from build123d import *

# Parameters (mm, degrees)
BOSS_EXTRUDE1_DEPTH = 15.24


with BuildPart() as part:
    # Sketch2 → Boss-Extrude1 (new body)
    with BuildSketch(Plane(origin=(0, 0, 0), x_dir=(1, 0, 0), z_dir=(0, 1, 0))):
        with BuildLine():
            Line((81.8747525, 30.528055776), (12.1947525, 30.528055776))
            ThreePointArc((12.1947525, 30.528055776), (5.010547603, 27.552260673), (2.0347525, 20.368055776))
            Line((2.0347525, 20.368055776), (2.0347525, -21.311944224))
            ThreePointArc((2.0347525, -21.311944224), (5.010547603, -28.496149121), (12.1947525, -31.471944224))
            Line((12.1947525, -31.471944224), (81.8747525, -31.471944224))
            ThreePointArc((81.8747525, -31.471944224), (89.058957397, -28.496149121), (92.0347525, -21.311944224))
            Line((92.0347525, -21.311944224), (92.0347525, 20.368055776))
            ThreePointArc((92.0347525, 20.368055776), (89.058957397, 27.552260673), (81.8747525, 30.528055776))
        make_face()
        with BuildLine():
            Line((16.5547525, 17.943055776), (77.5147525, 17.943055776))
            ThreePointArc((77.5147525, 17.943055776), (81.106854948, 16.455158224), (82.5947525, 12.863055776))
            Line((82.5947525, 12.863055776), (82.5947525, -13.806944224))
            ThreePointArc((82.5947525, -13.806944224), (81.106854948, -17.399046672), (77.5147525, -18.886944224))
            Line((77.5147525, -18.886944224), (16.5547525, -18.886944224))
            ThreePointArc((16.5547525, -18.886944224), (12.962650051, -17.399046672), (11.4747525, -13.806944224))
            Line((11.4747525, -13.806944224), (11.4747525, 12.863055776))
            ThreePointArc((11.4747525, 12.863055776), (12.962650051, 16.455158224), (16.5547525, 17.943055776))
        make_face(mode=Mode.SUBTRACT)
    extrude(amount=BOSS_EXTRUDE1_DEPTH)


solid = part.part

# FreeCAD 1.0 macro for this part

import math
import FreeCAD as App
import Part
import Sketcher

V = App.Vector
Q = App.Units.Quantity

doc = App.newDocument("Part")
body = doc.addObject("PartDesign::Body", "Body")

sketch1 = doc.addObject("Sketcher::SketchObject", "Sketch")
body.addObject(sketch1)
sketch1.AttachmentSupport = (doc.XZ_Plane, [""])
sketch1.MapMode = "FlatFace"
sketch1.addGeometry([
    Part.LineSegment(V(82, -31, 0), V(12, -31, 0)),
    Part.ArcOfCircle(Part.Circle(V(12, -20, 0), V(0, 0, 1), 10), math.radians(180), math.radians(270)),
    Part.LineSegment(V(2, -20, 0), V(2, 21, 0)),
    Part.ArcOfCircle(Part.Circle(V(12, 21, 0), V(0, 0, 1), 10), math.radians(90), math.radians(180)),
    Part.LineSegment(V(12, 31, 0), V(82, 31, 0)),
    Part.ArcOfCircle(Part.Circle(V(82, 21, 0), V(0, 0, 1), 10), math.radians(0), math.radians(90)),
    Part.LineSegment(V(92, 21, 0), V(92, -20, 0)),
    Part.ArcOfCircle(Part.Circle(V(82, -20, 0), V(0, 0, 1), 10), math.radians(-90), math.radians(0)),
    Part.ArcOfCircle(Part.Circle(V(17, -13, 0), V(0, 0, 1), 5), math.radians(180), math.radians(270)),
    Part.LineSegment(V(17, -18, 0), V(78, -18, 0)),
    Part.ArcOfCircle(Part.Circle(V(78, -13, 0), V(0, 0, 1), 5), math.radians(-90), math.radians(0)),
    Part.LineSegment(V(83, -13, 0), V(83, 14, 0)),
    Part.ArcOfCircle(Part.Circle(V(78, 14, 0), V(0, 0, 1), 5), math.radians(0), math.radians(90)),
    Part.LineSegment(V(78, 19, 0), V(17, 19, 0)),
    Part.ArcOfCircle(Part.Circle(V(17, 14, 0), V(0, 0, 1), 5), math.radians(90), math.radians(180)),
    Part.LineSegment(V(11, 14, 0), V(11, -13, 0)),
], False)
sketch1.addConstraint([
    Sketcher.Constraint("Tangent", 0, 2, 1, 2),
    Sketcher.Constraint("Tangent", 1, 1, 2, 1),
    Sketcher.Constraint("Tangent", 2, 2, 3, 2),
    Sketcher.Constraint("Tangent", 3, 1, 4, 1),
    Sketcher.Constraint("Tangent", 4, 2, 5, 2),
    Sketcher.Constraint("Tangent", 5, 1, 6, 1),
    Sketcher.Constraint("Tangent", 6, 2, 7, 2),
    Sketcher.Constraint("Tangent", 7, 1, 0, 1),
    Sketcher.Constraint("Tangent", 8, 2, 9, 1),
    Sketcher.Constraint("Tangent", 9, 2, 10, 1),
    Sketcher.Constraint("Tangent", 10, 2, 11, 1),
    Sketcher.Constraint("Tangent", 11, 2, 12, 1),
    Sketcher.Constraint("Tangent", 12, 2, 13, 1),
    Sketcher.Constraint("Tangent", 13, 2, 14, 1),
    Sketcher.Constraint("Tangent", 14, 2, 15, 1),
    Sketcher.Constraint("Tangent", 15, 2, 8, 1),
    Sketcher.Constraint("Horizontal", 0),
    Sketcher.Constraint("Vertical", 2),
    Sketcher.Constraint("Horizontal", 4),
    Sketcher.Constraint("Vertical", 6),
    Sketcher.Constraint("Horizontal", 9),
    Sketcher.Constraint("Vertical", 11),
    Sketcher.Constraint("Horizontal", 13),
    Sketcher.Constraint("Vertical", 15),
    Sketcher.Constraint("Equal", 1, 3),
    Sketcher.Constraint("Equal", 3, 5),
    Sketcher.Constraint("Equal", 5, 7),
    Sketcher.Constraint("Equal", 8, 10),
    Sketcher.Constraint("Equal", 10, 12),
    Sketcher.Constraint("Equal", 12, 14),
    Sketcher.Constraint("Radius", 1, Q("0.4 in")),
    Sketcher.Constraint("Radius", 8, Q("0.2 in")),
    Sketcher.Constraint("DistanceX", 9, 1, 9, 2, Q("2.4 in")),
    Sketcher.Constraint("DistanceY", 11, 1, 11, 2, Q("1.05 in")),
    Sketcher.Constraint("DistanceX", 0, 2, 0, 1, 69.68),
    Sketcher.Constraint("DistanceY", 2, 1, 2, 2, 41.68),
    Sketcher.Constraint("DistanceX", 1, 3, 8, 3, 4.36),
    Sketcher.Constraint("DistanceY", 1, 3, 8, 3, 7.505),
    Sketcher.Constraint("DistanceX", -1, 1, 1, 3, 12.194752),
    Sketcher.Constraint("DistanceY", 1, 3, -1, 1, 20.368056),
])
pad1 = doc.addObject("PartDesign::Pad", "Pad")
body.addObject(pad1)
pad1.Profile = sketch1
pad1.Length = Q("0.6 in")
pad1.Reversed = True

doc.recompute()
